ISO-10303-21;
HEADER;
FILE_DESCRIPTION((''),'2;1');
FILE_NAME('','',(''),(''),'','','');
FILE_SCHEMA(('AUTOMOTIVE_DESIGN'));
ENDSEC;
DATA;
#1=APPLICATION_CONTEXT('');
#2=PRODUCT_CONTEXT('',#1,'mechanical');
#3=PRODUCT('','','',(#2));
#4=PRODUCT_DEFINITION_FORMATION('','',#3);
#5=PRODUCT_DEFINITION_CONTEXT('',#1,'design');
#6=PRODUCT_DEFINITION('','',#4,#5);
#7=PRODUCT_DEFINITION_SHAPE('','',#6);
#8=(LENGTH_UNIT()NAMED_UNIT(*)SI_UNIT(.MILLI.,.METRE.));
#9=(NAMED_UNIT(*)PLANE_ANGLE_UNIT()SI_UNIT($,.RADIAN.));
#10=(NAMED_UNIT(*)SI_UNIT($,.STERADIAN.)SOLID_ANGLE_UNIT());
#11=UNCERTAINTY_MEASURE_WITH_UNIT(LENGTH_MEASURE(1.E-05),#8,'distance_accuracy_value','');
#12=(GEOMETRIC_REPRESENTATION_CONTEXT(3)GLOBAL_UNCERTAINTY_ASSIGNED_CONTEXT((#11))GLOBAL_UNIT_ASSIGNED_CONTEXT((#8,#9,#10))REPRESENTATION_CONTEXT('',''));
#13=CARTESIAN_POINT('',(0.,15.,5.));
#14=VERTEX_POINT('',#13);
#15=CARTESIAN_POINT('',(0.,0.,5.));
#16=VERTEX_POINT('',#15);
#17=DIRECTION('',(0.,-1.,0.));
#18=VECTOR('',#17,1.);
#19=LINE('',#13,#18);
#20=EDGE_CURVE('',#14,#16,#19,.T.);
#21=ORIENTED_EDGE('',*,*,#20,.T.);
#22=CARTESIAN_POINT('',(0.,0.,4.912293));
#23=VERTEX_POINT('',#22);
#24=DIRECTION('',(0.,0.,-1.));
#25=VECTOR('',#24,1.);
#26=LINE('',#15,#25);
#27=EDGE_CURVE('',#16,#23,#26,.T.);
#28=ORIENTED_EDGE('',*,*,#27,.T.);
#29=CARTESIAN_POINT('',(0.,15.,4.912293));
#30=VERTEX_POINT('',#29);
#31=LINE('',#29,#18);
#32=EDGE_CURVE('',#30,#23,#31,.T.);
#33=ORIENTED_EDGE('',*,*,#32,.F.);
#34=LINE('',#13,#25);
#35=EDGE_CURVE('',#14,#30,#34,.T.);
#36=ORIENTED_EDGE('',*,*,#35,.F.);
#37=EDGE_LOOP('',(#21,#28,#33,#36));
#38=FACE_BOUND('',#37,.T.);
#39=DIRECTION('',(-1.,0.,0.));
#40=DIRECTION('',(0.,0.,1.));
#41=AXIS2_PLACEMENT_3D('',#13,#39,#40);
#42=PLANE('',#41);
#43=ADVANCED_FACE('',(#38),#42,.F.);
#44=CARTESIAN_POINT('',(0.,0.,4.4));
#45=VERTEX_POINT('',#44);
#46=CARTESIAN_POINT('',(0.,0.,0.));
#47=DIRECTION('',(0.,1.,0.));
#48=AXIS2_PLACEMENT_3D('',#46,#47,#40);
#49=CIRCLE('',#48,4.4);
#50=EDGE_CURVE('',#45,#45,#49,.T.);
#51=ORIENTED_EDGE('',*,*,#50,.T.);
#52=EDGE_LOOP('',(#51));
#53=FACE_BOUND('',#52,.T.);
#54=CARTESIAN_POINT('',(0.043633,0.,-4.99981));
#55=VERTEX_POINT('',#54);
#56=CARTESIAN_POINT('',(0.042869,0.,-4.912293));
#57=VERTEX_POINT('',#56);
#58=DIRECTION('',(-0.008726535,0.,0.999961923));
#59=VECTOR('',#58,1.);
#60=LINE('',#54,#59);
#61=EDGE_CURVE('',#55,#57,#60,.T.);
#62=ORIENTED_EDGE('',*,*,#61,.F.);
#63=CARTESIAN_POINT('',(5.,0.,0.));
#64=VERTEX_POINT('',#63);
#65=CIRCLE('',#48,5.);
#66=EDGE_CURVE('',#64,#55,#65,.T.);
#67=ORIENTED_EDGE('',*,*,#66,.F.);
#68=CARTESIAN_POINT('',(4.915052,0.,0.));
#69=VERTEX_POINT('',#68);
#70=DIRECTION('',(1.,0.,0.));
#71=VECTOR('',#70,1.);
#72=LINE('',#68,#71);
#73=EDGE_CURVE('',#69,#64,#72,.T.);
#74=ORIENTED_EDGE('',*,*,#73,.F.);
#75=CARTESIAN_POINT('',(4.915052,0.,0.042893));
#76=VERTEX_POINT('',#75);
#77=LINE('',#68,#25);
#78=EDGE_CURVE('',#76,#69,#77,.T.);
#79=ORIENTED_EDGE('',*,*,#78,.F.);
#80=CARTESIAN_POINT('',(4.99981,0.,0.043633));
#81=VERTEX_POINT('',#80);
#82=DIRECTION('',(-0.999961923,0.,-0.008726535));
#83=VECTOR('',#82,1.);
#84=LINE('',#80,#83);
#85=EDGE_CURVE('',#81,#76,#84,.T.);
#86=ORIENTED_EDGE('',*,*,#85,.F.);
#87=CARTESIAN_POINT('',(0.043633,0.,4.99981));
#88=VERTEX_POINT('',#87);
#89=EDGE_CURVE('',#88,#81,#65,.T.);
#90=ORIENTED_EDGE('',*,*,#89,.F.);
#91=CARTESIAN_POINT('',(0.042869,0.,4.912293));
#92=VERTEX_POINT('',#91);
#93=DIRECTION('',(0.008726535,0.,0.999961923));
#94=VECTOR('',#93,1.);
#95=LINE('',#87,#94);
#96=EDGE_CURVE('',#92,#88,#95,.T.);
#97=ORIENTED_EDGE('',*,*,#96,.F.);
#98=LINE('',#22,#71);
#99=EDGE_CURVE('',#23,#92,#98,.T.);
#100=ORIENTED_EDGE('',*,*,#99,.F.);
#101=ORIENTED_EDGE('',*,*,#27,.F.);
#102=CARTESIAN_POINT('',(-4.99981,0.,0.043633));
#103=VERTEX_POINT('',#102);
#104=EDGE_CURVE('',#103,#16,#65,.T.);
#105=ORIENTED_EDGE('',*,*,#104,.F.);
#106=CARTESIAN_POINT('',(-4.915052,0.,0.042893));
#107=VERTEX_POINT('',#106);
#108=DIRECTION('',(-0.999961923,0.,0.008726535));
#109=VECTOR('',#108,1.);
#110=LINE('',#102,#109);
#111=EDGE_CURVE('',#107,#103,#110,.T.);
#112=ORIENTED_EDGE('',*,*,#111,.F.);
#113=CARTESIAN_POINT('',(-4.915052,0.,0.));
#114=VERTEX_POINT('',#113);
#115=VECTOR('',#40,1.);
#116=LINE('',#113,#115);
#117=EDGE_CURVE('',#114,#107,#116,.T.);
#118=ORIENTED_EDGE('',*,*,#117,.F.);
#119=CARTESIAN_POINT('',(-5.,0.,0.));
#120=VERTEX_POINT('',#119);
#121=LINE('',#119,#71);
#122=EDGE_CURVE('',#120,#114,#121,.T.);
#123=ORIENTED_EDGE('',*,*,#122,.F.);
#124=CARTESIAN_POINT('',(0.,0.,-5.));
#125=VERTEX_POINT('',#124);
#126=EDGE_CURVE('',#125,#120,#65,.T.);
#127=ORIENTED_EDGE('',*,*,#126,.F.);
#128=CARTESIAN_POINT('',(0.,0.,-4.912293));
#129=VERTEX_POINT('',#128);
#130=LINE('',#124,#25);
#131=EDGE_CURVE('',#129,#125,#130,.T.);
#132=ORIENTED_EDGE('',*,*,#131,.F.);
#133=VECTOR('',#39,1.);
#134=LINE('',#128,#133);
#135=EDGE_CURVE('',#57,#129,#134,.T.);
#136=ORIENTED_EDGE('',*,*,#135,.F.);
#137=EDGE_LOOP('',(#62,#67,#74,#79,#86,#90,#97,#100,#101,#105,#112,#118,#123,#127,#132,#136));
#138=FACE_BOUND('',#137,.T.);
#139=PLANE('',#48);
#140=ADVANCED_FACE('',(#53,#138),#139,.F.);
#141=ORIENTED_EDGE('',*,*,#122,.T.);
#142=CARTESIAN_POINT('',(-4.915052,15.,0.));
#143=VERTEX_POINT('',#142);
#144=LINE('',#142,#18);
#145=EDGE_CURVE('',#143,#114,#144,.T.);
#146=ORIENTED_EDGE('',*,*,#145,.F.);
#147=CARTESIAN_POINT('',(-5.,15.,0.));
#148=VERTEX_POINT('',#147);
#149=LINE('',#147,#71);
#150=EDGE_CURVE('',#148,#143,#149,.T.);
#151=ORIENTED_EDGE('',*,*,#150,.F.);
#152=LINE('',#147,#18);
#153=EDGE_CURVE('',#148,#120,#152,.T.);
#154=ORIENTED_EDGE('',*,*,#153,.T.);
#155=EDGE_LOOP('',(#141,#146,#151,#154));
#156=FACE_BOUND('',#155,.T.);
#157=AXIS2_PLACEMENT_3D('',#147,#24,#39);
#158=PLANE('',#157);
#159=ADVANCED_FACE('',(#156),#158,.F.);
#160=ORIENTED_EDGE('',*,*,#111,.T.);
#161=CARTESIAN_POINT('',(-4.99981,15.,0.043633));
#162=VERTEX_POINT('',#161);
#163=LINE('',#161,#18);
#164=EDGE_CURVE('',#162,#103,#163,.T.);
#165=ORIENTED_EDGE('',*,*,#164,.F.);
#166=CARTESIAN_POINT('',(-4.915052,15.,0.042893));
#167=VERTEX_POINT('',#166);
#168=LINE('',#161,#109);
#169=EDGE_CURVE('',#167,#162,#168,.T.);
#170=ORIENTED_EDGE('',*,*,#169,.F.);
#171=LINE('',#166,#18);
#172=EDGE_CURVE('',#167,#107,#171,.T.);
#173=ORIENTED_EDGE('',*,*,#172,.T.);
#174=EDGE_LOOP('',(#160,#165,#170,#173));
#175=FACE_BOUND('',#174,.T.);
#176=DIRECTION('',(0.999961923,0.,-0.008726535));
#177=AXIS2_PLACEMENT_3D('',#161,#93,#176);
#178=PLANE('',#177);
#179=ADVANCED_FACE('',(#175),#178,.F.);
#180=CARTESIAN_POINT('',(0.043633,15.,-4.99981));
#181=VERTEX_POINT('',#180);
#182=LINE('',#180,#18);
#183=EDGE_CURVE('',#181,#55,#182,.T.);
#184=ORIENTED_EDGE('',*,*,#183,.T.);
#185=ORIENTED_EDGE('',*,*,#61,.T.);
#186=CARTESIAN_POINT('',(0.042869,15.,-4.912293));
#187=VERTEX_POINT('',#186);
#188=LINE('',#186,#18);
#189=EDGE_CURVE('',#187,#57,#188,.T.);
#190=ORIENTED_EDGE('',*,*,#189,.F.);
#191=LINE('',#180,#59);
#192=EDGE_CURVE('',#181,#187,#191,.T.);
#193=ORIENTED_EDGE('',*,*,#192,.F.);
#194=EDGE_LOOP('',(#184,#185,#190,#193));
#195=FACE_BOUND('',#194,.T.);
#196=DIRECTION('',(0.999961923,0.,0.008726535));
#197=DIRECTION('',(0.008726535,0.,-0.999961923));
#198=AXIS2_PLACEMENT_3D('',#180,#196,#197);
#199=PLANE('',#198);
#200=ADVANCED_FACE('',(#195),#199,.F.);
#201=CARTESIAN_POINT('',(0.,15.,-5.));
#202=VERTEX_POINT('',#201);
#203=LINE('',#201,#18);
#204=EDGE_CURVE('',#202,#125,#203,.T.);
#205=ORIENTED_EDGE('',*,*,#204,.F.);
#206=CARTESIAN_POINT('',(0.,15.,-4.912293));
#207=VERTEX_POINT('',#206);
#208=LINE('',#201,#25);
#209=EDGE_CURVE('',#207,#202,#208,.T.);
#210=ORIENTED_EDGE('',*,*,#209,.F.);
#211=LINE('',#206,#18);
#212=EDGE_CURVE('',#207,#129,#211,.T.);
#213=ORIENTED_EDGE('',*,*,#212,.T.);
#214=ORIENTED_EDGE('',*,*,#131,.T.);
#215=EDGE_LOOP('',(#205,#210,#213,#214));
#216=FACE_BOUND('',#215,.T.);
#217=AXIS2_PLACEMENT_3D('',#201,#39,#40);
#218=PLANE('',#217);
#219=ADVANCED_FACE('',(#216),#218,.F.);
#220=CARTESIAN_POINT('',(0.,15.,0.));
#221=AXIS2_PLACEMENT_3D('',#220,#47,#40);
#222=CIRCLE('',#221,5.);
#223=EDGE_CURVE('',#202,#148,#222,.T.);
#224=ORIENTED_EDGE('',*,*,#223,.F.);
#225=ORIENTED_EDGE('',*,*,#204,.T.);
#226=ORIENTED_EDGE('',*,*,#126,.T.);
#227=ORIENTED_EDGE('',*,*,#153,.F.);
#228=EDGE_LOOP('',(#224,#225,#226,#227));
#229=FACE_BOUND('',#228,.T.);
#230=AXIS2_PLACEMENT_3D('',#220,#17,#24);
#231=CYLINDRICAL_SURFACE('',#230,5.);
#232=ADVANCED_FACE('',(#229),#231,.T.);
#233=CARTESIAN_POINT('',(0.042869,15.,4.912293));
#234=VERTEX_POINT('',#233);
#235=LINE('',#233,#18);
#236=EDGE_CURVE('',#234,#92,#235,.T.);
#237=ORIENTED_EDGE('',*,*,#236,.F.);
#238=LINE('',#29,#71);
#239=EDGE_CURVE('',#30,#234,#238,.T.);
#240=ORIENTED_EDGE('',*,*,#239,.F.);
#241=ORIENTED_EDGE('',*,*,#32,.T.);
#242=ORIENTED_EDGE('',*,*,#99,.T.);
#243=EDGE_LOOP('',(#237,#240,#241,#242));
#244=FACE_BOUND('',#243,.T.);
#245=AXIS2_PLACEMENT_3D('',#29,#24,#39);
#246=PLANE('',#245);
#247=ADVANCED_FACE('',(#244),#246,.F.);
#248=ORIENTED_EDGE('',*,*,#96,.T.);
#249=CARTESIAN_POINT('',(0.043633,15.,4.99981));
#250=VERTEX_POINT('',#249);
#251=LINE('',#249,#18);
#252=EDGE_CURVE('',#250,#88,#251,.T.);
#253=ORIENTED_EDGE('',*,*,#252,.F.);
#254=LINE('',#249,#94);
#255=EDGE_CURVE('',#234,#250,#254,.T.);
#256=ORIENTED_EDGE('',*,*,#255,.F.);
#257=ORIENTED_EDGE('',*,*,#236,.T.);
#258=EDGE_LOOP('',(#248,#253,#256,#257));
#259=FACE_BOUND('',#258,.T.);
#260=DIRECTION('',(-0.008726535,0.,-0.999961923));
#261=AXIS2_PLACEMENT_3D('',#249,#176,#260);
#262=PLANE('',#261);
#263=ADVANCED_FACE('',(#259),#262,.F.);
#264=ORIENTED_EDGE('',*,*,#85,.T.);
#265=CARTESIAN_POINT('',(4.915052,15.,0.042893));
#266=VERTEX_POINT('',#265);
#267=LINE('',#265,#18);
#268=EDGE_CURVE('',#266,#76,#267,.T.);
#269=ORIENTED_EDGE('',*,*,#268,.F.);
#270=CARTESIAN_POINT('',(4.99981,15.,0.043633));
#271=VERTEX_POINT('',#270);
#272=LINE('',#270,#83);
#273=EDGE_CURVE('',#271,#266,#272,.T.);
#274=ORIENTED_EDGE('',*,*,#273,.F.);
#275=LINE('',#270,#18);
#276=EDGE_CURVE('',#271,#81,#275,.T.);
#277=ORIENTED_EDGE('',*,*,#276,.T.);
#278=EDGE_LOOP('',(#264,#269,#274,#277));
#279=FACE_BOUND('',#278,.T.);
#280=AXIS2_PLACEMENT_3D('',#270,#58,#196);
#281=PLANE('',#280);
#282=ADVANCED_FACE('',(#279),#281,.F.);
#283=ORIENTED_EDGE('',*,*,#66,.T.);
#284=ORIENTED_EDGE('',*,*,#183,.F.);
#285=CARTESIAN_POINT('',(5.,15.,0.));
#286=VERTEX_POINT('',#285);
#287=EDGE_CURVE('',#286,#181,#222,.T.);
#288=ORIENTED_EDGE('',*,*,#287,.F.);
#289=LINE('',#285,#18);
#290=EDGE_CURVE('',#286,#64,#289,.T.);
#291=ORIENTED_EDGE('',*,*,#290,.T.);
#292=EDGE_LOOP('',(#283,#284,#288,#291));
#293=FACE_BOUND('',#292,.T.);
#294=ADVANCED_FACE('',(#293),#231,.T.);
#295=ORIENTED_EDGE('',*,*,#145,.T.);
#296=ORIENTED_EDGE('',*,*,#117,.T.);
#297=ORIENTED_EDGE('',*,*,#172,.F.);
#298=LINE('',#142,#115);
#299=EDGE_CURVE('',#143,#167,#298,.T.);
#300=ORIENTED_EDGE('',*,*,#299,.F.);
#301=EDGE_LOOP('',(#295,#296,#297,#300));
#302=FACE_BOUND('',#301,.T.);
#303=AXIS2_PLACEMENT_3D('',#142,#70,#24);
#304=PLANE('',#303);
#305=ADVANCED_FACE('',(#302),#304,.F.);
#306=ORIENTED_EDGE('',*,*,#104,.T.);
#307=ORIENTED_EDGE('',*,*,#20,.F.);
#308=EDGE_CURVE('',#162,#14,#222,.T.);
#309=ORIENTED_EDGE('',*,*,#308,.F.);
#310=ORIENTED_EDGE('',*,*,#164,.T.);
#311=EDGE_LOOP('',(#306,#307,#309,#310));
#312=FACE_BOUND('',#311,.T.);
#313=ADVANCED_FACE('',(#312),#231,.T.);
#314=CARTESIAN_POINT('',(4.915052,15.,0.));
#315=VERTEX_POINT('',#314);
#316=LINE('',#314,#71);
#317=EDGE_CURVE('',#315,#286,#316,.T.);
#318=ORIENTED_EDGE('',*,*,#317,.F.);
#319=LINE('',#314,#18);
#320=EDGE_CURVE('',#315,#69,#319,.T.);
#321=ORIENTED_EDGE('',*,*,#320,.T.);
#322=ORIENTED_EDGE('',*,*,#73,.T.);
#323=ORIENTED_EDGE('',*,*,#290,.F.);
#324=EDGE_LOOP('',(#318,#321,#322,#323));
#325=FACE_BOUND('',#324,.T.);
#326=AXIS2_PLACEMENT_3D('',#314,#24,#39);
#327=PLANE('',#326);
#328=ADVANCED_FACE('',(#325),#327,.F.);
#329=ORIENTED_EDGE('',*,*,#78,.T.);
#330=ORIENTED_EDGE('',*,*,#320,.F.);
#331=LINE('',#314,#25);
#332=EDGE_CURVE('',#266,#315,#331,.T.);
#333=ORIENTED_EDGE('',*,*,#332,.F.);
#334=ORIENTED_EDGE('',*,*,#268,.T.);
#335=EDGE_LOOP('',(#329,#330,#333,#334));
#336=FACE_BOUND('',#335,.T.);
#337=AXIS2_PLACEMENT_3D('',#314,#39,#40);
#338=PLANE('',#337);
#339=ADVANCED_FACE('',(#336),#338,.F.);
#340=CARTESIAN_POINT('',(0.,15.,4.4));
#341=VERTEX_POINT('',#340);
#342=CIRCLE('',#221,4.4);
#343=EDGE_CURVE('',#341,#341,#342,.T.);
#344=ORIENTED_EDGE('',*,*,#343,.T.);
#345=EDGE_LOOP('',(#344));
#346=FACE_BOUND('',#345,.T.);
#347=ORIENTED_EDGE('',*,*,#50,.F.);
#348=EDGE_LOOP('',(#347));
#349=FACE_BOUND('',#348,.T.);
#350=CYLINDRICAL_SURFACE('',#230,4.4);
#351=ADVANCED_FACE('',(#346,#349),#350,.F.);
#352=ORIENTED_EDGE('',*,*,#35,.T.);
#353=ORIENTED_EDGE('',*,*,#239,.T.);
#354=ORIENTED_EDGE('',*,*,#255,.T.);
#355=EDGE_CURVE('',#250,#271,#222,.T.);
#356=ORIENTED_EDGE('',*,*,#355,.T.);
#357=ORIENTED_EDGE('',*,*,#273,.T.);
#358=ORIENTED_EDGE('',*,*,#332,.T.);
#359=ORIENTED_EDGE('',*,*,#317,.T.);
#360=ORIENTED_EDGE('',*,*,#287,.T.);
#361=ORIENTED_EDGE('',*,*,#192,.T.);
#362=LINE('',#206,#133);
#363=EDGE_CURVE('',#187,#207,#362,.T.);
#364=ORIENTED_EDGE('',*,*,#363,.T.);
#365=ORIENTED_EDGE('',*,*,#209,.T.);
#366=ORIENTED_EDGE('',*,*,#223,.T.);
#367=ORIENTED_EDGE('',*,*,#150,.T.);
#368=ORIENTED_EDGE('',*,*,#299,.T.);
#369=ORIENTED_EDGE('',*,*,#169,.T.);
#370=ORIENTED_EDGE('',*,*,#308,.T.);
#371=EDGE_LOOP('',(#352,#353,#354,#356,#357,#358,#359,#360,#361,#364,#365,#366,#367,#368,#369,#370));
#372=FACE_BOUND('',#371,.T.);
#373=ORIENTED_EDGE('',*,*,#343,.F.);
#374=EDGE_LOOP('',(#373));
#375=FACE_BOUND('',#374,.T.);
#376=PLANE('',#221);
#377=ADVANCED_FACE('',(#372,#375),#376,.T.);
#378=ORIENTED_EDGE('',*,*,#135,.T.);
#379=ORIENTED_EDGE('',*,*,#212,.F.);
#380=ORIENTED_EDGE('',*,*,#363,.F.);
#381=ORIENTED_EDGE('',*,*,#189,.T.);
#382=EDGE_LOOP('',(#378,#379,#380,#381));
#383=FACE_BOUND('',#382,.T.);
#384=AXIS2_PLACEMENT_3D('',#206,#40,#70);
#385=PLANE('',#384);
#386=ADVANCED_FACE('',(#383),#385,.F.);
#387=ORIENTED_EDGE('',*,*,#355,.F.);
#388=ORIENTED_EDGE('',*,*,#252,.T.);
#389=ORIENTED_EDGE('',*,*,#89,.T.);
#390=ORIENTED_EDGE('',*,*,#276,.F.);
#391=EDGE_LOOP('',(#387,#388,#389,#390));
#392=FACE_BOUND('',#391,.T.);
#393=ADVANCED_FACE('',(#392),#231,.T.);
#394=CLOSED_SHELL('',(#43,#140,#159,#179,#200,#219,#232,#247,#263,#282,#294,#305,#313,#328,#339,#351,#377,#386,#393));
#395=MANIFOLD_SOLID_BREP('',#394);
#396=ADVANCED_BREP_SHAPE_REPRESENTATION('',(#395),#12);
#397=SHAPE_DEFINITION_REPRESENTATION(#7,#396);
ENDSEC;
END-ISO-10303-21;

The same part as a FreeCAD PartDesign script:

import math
import FreeCAD as App
import Part
import Sketcher
from FreeCAD import Vector
Q = App.Units.Quantity

doc = App.newDocument("Part")
body = doc.addObject("PartDesign::Body", "Body")

# Sketch on XZ plane
sketch1 = body.newObject("Sketcher::SketchObject", "Sketch")
sketch1.AttachmentSupport = (doc.getObject("XZ_Plane"), [""])
sketch1.MapMode = "FlatFace"
sketch1.addGeometry(Part.LineSegment(Vector(0, -4.912, 0), Vector(0, -5, 0)), False)
sketch1.addGeometry(Part.ArcOfCircle(Part.Circle(Vector(0, 0, 0), Vector(0, 0, 1), 5), math.radians(180), math.radians(270)), False)
sketch1.addGeometry(Part.LineSegment(Vector(-5, 0, 0), Vector(-4.915, 0, 0)), False)
sketch1.addGeometry(Part.LineSegment(Vector(-4.915, 0, 0), Vector(-4.915, 0.043, 0)), False)
sketch1.addGeometry(Part.LineSegment(Vector(-4.915, 0.043, 0), Vector(-5, 0.044, 0)), False)
sketch1.addGeometry(Part.ArcOfCircle(Part.Circle(Vector(0, 0, 0), Vector(0, 0, 1), 5), math.radians(90), math.radians(180)), False)
sketch1.addGeometry(Part.LineSegment(Vector(0, 5, 0), Vector(0, 4.912, 0)), False)
sketch1.addGeometry(Part.LineSegment(Vector(0, 4.912, 0), Vector(0.043, 4.912, 0)), False)
sketch1.addGeometry(Part.LineSegment(Vector(0.043, 4.912, 0), Vector(0.044, 5, 0)), False)
sketch1.addGeometry(Part.ArcOfCircle(Part.Circle(Vector(0, 0, 0), Vector(0, 0, 1), 5), math.radians(0), math.radians(90)), False)
sketch1.addGeometry(Part.LineSegment(Vector(5, 0.044, 0), Vector(4.915, 0.043, 0)), False)
sketch1.addGeometry(Part.LineSegment(Vector(4.915, 0.043, 0), Vector(4.915, 0, 0)), False)
sketch1.addGeometry(Part.LineSegment(Vector(4.915, 0, 0), Vector(5, 0, 0)), False)
sketch1.addGeometry(Part.ArcOfCircle(Part.Circle(Vector(0, 0, 0), Vector(0, 0, 1), 5), math.radians(-90), math.radians(0)), False)
sketch1.addGeometry(Part.LineSegment(Vector(0.044, -5, 0), Vector(0.043, -4.912, 0)), False)
sketch1.addGeometry(Part.LineSegment(Vector(0.043, -4.912, 0), Vector(0, -4.912, 0)), False)
sketch1.addGeometry(Part.Circle(Vector(0, 0, 0), Vector(0, 0, 1), 4.4), False)
sketch1.addConstraint(Sketcher.Constraint("Coincident", 0, 2, 1, 2))
sketch1.addConstraint(Sketcher.Constraint("Coincident", 1, 1, 2, 1))
sketch1.addConstraint(Sketcher.Constraint("Coincident", 2, 2, 3, 1))
sketch1.addConstraint(Sketcher.Constraint("Coincident", 3, 2, 4, 1))
sketch1.addConstraint(Sketcher.Constraint("Coincident", 4, 2, 5, 2))
sketch1.addConstraint(Sketcher.Constraint("Coincident", 5, 1, 6, 1))
sketch1.addConstraint(Sketcher.Constraint("Coincident", 6, 2, 7, 1))
sketch1.addConstraint(Sketcher.Constraint("Coincident", 7, 2, 8, 1))
sketch1.addConstraint(Sketcher.Constraint("Coincident", 8, 2, 9, 2))
sketch1.addConstraint(Sketcher.Constraint("Coincident", 9, 1, 10, 1))
sketch1.addConstraint(Sketcher.Constraint("Coincident", 10, 2, 11, 1))
sketch1.addConstraint(Sketcher.Constraint("Coincident", 11, 2, 12, 1))
sketch1.addConstraint(Sketcher.Constraint("Coincident", 12, 2, 13, 2))
sketch1.addConstraint(Sketcher.Constraint("Coincident", 13, 1, 14, 1))
sketch1.addConstraint(Sketcher.Constraint("Coincident", 14, 2, 15, 1))
sketch1.addConstraint(Sketcher.Constraint("Coincident", 15, 2, 0, 1))
sketch1.addConstraint(Sketcher.Constraint("Vertical", 0))
sketch1.addConstraint(Sketcher.Constraint("Horizontal", 2))
sketch1.addConstraint(Sketcher.Constraint("Vertical", 3))
sketch1.addConstraint(Sketcher.Constraint("Vertical", 6))
sketch1.addConstraint(Sketcher.Constraint("Horizontal", 7))
sketch1.addConstraint(Sketcher.Constraint("Vertical", 11))
sketch1.addConstraint(Sketcher.Constraint("Horizontal", 12))
sketch1.addConstraint(Sketcher.Constraint("Horizontal", 15))
sketch1.addConstraint(Sketcher.Constraint("Coincident", 1, 3, -1, 1))
sketch1.addConstraint(Sketcher.Constraint("Coincident", 5, 3, -1, 1))
sketch1.addConstraint(Sketcher.Constraint("Coincident", 9, 3, -1, 1))
sketch1.addConstraint(Sketcher.Constraint("Coincident", 13, 3, -1, 1))
sketch1.addConstraint(Sketcher.Constraint("Coincident", 16, 3, -1, 1))
sketch1.addConstraint(Sketcher.Constraint("Equal", 1, 5))
sketch1.addConstraint(Sketcher.Constraint("Equal", 5, 9))
sketch1.addConstraint(Sketcher.Constraint("Equal", 9, 13))
sketch1.addConstraint(Sketcher.Constraint("Symmetric", 2, 2, 11, 2, -1, 1))
sketch1.addConstraint(Sketcher.Constraint("Symmetric", 6, 2, 15, 2, -1, 1))
sketch1.addConstraint(Sketcher.Constraint("PointOnObject", 0, 2, -2))
sketch1.addConstraint(Sketcher.Constraint("PointOnObject", 1, 1, -1))
sketch1.addConstraint(Sketcher.Constraint("Perpendicular", 4, 8))
sketch1.addConstraint(Sketcher.Constraint("Perpendicular", 10, 14))
sketch1.addConstraint(Sketcher.Constraint("Horizontal", 4, 2, 9, 1))
sketch1.addConstraint(Sketcher.Constraint("Horizontal", 3, 2, 10, 2))
sketch1.addConstraint(Sketcher.Constraint("Vertical", 8, 2, 13, 1))
sketch1.addConstraint(Sketcher.Constraint("Radius", 1, 5.0))
sketch1.addConstraint(Sketcher.Constraint("Diameter", 16, 8.8))
sketch1.addConstraint(Sketcher.Constraint("Angle", 4, Q("179.5 deg")))
sketch1.addConstraint(Sketcher.Constraint("DistanceX", 2, 1, 2, 2, 0.084948))
sketch1.addConstraint(Sketcher.Constraint("DistanceX", 7, 1, 7, 2, 0.042869))
sketch1.addConstraint(Sketcher.Constraint("Distance", 4, 0.084761))
sketch1.addConstraint(Sketcher.Constraint("Distance", 8, 0.08752))
pad1 = body.newObject("PartDesign::Pad", "Pad")
pad1.Profile = sketch1
pad1.Length = 15
pad1.Reversed = True

doc.recompute()
